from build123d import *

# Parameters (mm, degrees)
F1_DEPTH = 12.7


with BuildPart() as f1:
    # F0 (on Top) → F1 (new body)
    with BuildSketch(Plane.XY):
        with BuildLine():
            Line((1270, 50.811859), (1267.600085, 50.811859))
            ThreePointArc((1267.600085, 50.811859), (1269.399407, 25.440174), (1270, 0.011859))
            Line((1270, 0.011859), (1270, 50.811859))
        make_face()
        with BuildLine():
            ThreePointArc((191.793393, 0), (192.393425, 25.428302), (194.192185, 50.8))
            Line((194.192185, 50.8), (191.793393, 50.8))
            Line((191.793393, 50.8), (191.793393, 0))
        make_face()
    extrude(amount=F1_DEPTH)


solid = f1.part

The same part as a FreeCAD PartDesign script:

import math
import FreeCAD as App
import Part
import Sketcher

V = App.Vector
Q = App.Units.Quantity

doc = App.newDocument("Part")
body = doc.addObject("PartDesign::Body", "Body")
body.AllowCompound = True

# Sketch on XY plane
sketch1 = body.newObject("Sketcher::SketchObject", "Sketch")
sketch1.AttachmentSupport = (doc.getObject("XY_Plane"), [""])
sketch1.MapMode = "FlatFace"
sketch1.addGeometry([
    Part.LineSegment(V(1270, 50.8, 0), V(1267.6, 50.8, 0)),  # 0
    Part.ArcOfCircle(Part.Circle(V(730.9, 0, 0), V(0, 0, 1), 539.1), math.radians(0), math.radians(5.41)),  # 1
    Part.LineSegment(V(1270, 0, 0), V(1270, 50.8, 0)),  # 2
    Part.ArcOfCircle(Part.Circle(V(730.9, 0, 0), V(0, 0, 1), 539.1), math.radians(174.59), math.radians(180)),  # 3
    Part.LineSegment(V(194.2, 50.8, 0), V(191.8, 50.8, 0)),  # 4
    Part.LineSegment(V(191.8, 50.8, 0), V(191.8, 0, 0)),  # 5
], False)
sketch1.addConstraint([
    Sketcher.Constraint("Coincident", 0, 2, 1, 2),
    Sketcher.Constraint("Coincident", 1, 1, 2, 1),
    Sketcher.Constraint("Coincident", 2, 2, 0, 1),
    Sketcher.Constraint("Coincident", 3, 1, 4, 1),
    Sketcher.Constraint("Coincident", 4, 2, 5, 1),
    Sketcher.Constraint("Tangent", 5, 2, 3, 2),
    Sketcher.Constraint("Horizontal", 0),
    Sketcher.Constraint("Vertical", 2),
    Sketcher.Constraint("Horizontal", 4),
    Sketcher.Constraint("Vertical", 5),
    Sketcher.Constraint("PointOnObject", 5, 2, -1),
    Sketcher.Constraint("Equal", 2, 5),
    Sketcher.Constraint("DistanceY", 2, 1, 2, 2, Q("2 in")),
    Sketcher.Constraint("DistanceX", -1, 1, 1, 1, Q("50 in")),
    Sketcher.Constraint("Radius", 3, Q("539.10355 mm")),
    Sketcher.Constraint("Radius", 1, Q("539.103674 mm")),
    Sketcher.Constraint("DistanceX", 3, 1, 0, 2, Q("1073.4079 mm")),
    Sketcher.Constraint("DistanceX", 0, 2, 0, 1, Q("2.399915 mm")),
    Sketcher.Constraint("DistanceY", -1, 1, 0, 2, Q("50.811859 mm")),
])
pad1 = body.newObject("PartDesign::Pad", "Pad")
pad1.Profile = sketch1
pad1.Length = Q("0.5 in")

doc.recompute()
